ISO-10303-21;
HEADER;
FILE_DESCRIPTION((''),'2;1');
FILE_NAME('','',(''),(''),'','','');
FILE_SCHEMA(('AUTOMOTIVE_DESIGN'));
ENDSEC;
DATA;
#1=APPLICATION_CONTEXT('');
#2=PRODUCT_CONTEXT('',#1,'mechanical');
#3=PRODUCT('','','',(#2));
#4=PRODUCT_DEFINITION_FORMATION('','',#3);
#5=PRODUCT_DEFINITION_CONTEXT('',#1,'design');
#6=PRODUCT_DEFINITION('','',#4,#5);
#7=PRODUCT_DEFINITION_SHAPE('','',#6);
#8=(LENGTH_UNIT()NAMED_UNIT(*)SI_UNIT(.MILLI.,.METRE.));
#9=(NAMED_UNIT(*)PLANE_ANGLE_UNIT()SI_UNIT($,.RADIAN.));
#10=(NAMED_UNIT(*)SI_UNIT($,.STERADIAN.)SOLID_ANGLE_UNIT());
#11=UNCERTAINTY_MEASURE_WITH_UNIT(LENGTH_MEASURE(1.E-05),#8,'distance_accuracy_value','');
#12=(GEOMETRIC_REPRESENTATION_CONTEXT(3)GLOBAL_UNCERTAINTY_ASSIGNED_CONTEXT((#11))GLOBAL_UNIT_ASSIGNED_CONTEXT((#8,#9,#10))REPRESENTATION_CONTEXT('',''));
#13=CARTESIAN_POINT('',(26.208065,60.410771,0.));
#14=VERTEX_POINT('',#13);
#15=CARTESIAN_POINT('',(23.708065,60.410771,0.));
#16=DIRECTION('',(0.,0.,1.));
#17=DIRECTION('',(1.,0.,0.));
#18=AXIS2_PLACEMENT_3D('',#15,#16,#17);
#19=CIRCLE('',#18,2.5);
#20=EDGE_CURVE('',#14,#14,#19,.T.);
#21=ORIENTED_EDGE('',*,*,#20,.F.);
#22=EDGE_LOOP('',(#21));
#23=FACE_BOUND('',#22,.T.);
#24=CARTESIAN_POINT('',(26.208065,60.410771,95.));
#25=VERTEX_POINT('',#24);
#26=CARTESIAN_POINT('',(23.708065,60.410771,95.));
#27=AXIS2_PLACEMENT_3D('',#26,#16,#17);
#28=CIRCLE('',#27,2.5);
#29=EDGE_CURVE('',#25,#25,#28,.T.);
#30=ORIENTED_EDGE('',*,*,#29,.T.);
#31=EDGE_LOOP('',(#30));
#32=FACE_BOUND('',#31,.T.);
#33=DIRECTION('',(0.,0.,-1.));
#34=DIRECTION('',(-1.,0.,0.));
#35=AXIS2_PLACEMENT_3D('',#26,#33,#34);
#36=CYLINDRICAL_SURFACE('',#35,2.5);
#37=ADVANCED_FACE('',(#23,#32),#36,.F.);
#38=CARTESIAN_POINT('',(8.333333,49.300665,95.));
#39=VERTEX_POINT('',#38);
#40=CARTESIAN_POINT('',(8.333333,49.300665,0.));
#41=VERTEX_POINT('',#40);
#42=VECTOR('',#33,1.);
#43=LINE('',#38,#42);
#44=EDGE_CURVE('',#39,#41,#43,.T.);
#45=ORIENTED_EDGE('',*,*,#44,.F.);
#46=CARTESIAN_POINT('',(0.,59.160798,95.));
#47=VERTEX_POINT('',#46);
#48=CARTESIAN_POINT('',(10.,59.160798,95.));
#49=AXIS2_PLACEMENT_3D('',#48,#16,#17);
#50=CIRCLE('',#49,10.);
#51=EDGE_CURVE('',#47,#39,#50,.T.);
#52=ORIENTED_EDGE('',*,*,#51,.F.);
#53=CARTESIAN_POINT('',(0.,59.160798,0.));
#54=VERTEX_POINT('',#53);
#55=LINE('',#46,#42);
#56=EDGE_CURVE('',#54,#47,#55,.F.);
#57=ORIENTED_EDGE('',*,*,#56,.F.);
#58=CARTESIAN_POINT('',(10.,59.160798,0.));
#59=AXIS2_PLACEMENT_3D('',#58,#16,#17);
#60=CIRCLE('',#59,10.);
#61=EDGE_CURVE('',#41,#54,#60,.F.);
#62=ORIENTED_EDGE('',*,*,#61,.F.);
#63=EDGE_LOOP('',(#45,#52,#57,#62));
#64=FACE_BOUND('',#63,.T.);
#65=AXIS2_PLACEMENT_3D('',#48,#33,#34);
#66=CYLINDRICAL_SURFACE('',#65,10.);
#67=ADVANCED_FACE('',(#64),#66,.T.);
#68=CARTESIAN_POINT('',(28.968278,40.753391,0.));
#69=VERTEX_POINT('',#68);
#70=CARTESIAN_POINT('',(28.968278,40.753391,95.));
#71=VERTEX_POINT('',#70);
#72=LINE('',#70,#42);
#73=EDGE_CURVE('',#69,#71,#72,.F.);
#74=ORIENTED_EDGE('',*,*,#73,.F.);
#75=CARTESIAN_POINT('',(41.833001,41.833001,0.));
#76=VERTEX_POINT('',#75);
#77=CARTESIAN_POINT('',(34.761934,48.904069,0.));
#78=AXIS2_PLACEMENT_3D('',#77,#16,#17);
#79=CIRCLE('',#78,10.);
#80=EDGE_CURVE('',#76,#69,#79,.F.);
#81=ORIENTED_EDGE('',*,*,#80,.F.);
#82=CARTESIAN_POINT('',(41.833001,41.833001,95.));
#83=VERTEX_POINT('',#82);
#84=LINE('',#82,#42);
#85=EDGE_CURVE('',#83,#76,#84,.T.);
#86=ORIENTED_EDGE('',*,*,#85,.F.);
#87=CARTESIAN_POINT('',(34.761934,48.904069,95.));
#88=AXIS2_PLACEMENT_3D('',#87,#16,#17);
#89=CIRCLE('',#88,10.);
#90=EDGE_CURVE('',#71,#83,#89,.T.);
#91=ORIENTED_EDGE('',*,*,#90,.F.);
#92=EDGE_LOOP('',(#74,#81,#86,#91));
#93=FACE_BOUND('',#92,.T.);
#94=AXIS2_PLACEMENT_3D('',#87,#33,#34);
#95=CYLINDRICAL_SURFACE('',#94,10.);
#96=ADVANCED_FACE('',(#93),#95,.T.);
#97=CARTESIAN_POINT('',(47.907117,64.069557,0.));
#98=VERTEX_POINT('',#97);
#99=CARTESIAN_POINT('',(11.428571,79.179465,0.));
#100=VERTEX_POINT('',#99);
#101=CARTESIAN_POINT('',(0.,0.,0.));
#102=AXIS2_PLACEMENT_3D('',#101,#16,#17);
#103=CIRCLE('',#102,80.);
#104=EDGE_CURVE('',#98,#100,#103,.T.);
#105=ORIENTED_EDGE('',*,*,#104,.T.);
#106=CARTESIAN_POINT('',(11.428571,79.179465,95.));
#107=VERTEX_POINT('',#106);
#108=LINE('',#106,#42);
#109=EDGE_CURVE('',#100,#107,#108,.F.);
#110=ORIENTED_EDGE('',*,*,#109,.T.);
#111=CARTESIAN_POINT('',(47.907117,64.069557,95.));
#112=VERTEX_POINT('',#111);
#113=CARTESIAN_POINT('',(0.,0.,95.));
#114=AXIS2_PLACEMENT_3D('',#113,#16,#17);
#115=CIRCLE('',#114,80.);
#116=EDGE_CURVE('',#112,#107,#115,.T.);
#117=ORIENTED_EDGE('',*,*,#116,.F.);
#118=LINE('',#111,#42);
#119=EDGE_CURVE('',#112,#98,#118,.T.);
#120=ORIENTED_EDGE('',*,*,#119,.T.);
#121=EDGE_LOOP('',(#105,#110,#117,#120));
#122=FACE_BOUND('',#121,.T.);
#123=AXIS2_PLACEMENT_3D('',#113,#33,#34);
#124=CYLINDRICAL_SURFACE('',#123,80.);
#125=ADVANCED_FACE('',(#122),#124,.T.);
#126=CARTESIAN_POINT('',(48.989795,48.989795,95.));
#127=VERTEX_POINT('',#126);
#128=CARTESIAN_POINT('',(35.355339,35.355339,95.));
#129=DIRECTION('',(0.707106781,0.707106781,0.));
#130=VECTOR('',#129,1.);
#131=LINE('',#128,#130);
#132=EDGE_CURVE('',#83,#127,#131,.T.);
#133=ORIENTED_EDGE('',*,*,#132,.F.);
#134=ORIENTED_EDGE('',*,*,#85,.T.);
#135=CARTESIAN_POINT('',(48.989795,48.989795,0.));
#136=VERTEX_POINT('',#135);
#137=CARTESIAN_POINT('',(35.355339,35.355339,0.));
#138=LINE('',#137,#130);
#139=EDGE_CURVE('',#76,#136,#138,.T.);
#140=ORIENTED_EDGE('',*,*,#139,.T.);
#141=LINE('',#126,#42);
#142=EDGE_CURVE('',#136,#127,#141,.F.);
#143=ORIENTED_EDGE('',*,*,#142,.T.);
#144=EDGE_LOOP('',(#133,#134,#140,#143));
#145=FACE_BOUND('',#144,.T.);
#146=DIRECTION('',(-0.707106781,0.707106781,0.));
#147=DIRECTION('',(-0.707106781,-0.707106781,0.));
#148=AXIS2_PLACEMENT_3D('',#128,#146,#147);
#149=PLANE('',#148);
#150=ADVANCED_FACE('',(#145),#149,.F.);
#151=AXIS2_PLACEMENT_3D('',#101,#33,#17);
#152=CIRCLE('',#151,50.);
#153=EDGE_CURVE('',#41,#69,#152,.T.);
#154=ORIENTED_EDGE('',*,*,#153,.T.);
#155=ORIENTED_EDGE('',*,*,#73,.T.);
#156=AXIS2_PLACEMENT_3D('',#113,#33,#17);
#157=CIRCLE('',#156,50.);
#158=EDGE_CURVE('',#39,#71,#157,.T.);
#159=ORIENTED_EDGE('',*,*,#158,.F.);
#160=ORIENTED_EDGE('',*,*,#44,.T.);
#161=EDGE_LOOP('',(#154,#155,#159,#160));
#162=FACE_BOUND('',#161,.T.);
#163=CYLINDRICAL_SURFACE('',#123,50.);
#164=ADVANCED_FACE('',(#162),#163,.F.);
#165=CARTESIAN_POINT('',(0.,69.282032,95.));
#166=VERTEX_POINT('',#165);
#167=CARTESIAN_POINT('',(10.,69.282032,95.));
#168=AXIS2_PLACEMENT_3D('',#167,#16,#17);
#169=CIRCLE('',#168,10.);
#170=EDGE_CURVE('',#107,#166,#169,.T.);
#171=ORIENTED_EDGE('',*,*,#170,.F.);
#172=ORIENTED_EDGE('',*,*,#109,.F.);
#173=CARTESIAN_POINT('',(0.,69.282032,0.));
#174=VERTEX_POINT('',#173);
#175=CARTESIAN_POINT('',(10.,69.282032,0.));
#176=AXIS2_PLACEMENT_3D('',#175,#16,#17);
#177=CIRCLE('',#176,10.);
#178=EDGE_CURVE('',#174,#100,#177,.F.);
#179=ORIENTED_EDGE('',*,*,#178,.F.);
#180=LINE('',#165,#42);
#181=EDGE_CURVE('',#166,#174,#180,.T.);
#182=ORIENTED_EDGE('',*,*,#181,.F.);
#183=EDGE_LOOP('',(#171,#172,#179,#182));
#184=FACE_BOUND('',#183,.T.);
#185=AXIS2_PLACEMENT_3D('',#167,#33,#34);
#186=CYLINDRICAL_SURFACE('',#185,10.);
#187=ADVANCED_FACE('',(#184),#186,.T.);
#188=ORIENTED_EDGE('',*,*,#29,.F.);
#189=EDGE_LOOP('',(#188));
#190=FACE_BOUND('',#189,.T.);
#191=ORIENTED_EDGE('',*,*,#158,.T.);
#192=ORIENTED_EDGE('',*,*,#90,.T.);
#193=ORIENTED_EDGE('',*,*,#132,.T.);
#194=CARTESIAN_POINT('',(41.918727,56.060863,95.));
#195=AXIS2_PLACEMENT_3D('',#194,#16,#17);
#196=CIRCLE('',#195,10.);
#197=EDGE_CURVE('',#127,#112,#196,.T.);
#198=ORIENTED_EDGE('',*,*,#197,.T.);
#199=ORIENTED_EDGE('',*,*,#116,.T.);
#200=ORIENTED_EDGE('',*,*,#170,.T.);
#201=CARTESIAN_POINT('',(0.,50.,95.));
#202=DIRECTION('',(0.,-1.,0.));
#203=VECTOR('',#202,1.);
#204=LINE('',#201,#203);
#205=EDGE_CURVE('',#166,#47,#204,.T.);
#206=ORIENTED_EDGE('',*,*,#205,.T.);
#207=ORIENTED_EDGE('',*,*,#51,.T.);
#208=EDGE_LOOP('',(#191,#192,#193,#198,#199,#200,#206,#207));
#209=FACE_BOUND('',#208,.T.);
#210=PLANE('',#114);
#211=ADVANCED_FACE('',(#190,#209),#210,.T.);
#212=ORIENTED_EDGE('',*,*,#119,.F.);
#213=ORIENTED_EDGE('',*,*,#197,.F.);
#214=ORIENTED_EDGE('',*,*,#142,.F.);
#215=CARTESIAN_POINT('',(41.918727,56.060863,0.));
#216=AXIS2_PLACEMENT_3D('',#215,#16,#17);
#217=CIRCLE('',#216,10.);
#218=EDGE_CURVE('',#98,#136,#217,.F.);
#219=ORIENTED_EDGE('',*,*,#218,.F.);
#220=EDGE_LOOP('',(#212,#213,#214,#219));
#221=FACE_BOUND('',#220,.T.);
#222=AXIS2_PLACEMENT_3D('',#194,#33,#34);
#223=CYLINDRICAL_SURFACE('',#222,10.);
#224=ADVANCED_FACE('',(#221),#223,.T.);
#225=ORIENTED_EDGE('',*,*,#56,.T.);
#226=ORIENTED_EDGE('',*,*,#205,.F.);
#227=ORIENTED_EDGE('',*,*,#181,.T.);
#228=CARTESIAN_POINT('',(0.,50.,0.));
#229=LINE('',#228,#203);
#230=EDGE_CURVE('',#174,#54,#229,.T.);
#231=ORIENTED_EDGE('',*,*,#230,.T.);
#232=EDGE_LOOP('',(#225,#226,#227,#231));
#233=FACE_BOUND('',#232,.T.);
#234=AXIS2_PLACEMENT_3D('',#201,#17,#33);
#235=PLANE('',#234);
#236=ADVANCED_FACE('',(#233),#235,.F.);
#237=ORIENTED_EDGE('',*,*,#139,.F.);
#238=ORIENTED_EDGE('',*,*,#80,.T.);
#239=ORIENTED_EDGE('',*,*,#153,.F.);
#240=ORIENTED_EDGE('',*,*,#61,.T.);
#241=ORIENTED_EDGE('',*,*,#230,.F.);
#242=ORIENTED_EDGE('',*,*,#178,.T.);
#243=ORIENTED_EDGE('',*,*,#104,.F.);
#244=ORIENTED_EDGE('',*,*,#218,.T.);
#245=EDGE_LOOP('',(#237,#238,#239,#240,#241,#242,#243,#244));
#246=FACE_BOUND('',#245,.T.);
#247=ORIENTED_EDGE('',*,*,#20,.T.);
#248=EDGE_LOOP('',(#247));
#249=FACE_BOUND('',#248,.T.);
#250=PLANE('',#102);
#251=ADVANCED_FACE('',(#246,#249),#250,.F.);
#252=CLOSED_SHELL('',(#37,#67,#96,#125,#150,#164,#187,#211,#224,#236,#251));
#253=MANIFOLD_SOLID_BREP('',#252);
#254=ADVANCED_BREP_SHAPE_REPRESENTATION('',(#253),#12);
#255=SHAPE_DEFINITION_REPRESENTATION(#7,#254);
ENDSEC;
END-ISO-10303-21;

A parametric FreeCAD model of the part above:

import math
import FreeCAD as App
import Part
import Sketcher
from FreeCAD import Vector
Q = App.Units.Quantity


def edges_at(feature, points):
    """Names of the edges that pass closest to the given points."""
    edges = feature.Shape.Edges
    near = lambda p: min(range(len(edges)), key=lambda i: edges[i].distToShape(Part.Vertex(*p))[0])
    return sorted({f"Edge{near(p) + 1}" for p in points})

doc = App.newDocument("Part")
body = doc.addObject("PartDesign::Body", "Body")

# Sketch on XY plane
sketch1 = body.newObject("Sketcher::SketchObject", "Sketch")
sketch1.AttachmentSupport = (doc.getObject("XY_Plane"), [""])
sketch1.MapMode = "FlatFace"
sketch1.addGeometry(Part.LineSegment(Vector(0, 80, 0), Vector(0, 50, 0)), False)
sketch1.addGeometry(Part.ArcOfCircle(Part.Circle(Vector(0, 0, 0), Vector(0, 0, 1), 50), math.radians(45), math.radians(90)), False)
sketch1.addGeometry(Part.LineSegment(Vector(35.355339, 35.355339, 0), Vector(56.568542, 56.568542, 0)), False)
sketch1.addGeometry(Part.ArcOfCircle(Part.Circle(Vector(0, 0, 0), Vector(0, 0, 1), 80), math.radians(45), math.radians(90)), False)
sketch1.addGeometry(Part.Circle(Vector(23.708065, 60.410771, 0), Vector(0, 0, 1), 2.5), False)
sketch1.addConstraint(Sketcher.Constraint("Coincident", 0, 2, 1, 2))
sketch1.addConstraint(Sketcher.Constraint("Coincident", 1, 1, 2, 1))
sketch1.addConstraint(Sketcher.Constraint("Coincident", 2, 2, 3, 1))
sketch1.addConstraint(Sketcher.Constraint("Coincident", 3, 2, 0, 1))
sketch1.addConstraint(Sketcher.Constraint("Vertical", 0))
sketch1.addConstraint(Sketcher.Constraint("Coincident", 1, 3, -1, 1))
sketch1.addConstraint(Sketcher.Constraint("Coincident", 3, 3, -1, 1))
sketch1.addConstraint(Sketcher.Constraint("PointOnObject", 0, 2, -2))
sketch1.addConstraint(Sketcher.Constraint("Diameter", 4, Q("5 mm")))
sketch1.addConstraint(Sketcher.Constraint("Radius", 1, Q("50 mm")))
sketch1.addConstraint(Sketcher.Constraint("Radius", 3, Q("80 mm")))
sketch1.addConstraint(Sketcher.Constraint("Angle", 2, Q("45 deg")))
sketch1.addConstraint(Sketcher.Constraint("DistanceY", -1, 1, 4, 3, Q("60.410771 mm")))
sketch1.addConstraint(Sketcher.Constraint("DistanceX", -1, 1, 1, 1, Q("35.355339 mm")))
sketch1.addConstraint(Sketcher.Constraint("DistanceX", -1, 1, 4, 3, Q("23.708065 mm")))
pad1 = body.newObject("PartDesign::Pad", "Pad")
pad1.Profile = sketch1
pad1.Length = 95
doc.recompute()

fillet = body.newObject("PartDesign::Fillet", "Fillet")
fillet.Base = (pad1, edges_at(pad1, [
    (56.569, 56.569, 47.5),
    (35.355, 35.355, 47.5),
    (0, 50, 47.5),
    (0, 80, 47.5),
]))
fillet.Radius = 10

doc.recompute()
